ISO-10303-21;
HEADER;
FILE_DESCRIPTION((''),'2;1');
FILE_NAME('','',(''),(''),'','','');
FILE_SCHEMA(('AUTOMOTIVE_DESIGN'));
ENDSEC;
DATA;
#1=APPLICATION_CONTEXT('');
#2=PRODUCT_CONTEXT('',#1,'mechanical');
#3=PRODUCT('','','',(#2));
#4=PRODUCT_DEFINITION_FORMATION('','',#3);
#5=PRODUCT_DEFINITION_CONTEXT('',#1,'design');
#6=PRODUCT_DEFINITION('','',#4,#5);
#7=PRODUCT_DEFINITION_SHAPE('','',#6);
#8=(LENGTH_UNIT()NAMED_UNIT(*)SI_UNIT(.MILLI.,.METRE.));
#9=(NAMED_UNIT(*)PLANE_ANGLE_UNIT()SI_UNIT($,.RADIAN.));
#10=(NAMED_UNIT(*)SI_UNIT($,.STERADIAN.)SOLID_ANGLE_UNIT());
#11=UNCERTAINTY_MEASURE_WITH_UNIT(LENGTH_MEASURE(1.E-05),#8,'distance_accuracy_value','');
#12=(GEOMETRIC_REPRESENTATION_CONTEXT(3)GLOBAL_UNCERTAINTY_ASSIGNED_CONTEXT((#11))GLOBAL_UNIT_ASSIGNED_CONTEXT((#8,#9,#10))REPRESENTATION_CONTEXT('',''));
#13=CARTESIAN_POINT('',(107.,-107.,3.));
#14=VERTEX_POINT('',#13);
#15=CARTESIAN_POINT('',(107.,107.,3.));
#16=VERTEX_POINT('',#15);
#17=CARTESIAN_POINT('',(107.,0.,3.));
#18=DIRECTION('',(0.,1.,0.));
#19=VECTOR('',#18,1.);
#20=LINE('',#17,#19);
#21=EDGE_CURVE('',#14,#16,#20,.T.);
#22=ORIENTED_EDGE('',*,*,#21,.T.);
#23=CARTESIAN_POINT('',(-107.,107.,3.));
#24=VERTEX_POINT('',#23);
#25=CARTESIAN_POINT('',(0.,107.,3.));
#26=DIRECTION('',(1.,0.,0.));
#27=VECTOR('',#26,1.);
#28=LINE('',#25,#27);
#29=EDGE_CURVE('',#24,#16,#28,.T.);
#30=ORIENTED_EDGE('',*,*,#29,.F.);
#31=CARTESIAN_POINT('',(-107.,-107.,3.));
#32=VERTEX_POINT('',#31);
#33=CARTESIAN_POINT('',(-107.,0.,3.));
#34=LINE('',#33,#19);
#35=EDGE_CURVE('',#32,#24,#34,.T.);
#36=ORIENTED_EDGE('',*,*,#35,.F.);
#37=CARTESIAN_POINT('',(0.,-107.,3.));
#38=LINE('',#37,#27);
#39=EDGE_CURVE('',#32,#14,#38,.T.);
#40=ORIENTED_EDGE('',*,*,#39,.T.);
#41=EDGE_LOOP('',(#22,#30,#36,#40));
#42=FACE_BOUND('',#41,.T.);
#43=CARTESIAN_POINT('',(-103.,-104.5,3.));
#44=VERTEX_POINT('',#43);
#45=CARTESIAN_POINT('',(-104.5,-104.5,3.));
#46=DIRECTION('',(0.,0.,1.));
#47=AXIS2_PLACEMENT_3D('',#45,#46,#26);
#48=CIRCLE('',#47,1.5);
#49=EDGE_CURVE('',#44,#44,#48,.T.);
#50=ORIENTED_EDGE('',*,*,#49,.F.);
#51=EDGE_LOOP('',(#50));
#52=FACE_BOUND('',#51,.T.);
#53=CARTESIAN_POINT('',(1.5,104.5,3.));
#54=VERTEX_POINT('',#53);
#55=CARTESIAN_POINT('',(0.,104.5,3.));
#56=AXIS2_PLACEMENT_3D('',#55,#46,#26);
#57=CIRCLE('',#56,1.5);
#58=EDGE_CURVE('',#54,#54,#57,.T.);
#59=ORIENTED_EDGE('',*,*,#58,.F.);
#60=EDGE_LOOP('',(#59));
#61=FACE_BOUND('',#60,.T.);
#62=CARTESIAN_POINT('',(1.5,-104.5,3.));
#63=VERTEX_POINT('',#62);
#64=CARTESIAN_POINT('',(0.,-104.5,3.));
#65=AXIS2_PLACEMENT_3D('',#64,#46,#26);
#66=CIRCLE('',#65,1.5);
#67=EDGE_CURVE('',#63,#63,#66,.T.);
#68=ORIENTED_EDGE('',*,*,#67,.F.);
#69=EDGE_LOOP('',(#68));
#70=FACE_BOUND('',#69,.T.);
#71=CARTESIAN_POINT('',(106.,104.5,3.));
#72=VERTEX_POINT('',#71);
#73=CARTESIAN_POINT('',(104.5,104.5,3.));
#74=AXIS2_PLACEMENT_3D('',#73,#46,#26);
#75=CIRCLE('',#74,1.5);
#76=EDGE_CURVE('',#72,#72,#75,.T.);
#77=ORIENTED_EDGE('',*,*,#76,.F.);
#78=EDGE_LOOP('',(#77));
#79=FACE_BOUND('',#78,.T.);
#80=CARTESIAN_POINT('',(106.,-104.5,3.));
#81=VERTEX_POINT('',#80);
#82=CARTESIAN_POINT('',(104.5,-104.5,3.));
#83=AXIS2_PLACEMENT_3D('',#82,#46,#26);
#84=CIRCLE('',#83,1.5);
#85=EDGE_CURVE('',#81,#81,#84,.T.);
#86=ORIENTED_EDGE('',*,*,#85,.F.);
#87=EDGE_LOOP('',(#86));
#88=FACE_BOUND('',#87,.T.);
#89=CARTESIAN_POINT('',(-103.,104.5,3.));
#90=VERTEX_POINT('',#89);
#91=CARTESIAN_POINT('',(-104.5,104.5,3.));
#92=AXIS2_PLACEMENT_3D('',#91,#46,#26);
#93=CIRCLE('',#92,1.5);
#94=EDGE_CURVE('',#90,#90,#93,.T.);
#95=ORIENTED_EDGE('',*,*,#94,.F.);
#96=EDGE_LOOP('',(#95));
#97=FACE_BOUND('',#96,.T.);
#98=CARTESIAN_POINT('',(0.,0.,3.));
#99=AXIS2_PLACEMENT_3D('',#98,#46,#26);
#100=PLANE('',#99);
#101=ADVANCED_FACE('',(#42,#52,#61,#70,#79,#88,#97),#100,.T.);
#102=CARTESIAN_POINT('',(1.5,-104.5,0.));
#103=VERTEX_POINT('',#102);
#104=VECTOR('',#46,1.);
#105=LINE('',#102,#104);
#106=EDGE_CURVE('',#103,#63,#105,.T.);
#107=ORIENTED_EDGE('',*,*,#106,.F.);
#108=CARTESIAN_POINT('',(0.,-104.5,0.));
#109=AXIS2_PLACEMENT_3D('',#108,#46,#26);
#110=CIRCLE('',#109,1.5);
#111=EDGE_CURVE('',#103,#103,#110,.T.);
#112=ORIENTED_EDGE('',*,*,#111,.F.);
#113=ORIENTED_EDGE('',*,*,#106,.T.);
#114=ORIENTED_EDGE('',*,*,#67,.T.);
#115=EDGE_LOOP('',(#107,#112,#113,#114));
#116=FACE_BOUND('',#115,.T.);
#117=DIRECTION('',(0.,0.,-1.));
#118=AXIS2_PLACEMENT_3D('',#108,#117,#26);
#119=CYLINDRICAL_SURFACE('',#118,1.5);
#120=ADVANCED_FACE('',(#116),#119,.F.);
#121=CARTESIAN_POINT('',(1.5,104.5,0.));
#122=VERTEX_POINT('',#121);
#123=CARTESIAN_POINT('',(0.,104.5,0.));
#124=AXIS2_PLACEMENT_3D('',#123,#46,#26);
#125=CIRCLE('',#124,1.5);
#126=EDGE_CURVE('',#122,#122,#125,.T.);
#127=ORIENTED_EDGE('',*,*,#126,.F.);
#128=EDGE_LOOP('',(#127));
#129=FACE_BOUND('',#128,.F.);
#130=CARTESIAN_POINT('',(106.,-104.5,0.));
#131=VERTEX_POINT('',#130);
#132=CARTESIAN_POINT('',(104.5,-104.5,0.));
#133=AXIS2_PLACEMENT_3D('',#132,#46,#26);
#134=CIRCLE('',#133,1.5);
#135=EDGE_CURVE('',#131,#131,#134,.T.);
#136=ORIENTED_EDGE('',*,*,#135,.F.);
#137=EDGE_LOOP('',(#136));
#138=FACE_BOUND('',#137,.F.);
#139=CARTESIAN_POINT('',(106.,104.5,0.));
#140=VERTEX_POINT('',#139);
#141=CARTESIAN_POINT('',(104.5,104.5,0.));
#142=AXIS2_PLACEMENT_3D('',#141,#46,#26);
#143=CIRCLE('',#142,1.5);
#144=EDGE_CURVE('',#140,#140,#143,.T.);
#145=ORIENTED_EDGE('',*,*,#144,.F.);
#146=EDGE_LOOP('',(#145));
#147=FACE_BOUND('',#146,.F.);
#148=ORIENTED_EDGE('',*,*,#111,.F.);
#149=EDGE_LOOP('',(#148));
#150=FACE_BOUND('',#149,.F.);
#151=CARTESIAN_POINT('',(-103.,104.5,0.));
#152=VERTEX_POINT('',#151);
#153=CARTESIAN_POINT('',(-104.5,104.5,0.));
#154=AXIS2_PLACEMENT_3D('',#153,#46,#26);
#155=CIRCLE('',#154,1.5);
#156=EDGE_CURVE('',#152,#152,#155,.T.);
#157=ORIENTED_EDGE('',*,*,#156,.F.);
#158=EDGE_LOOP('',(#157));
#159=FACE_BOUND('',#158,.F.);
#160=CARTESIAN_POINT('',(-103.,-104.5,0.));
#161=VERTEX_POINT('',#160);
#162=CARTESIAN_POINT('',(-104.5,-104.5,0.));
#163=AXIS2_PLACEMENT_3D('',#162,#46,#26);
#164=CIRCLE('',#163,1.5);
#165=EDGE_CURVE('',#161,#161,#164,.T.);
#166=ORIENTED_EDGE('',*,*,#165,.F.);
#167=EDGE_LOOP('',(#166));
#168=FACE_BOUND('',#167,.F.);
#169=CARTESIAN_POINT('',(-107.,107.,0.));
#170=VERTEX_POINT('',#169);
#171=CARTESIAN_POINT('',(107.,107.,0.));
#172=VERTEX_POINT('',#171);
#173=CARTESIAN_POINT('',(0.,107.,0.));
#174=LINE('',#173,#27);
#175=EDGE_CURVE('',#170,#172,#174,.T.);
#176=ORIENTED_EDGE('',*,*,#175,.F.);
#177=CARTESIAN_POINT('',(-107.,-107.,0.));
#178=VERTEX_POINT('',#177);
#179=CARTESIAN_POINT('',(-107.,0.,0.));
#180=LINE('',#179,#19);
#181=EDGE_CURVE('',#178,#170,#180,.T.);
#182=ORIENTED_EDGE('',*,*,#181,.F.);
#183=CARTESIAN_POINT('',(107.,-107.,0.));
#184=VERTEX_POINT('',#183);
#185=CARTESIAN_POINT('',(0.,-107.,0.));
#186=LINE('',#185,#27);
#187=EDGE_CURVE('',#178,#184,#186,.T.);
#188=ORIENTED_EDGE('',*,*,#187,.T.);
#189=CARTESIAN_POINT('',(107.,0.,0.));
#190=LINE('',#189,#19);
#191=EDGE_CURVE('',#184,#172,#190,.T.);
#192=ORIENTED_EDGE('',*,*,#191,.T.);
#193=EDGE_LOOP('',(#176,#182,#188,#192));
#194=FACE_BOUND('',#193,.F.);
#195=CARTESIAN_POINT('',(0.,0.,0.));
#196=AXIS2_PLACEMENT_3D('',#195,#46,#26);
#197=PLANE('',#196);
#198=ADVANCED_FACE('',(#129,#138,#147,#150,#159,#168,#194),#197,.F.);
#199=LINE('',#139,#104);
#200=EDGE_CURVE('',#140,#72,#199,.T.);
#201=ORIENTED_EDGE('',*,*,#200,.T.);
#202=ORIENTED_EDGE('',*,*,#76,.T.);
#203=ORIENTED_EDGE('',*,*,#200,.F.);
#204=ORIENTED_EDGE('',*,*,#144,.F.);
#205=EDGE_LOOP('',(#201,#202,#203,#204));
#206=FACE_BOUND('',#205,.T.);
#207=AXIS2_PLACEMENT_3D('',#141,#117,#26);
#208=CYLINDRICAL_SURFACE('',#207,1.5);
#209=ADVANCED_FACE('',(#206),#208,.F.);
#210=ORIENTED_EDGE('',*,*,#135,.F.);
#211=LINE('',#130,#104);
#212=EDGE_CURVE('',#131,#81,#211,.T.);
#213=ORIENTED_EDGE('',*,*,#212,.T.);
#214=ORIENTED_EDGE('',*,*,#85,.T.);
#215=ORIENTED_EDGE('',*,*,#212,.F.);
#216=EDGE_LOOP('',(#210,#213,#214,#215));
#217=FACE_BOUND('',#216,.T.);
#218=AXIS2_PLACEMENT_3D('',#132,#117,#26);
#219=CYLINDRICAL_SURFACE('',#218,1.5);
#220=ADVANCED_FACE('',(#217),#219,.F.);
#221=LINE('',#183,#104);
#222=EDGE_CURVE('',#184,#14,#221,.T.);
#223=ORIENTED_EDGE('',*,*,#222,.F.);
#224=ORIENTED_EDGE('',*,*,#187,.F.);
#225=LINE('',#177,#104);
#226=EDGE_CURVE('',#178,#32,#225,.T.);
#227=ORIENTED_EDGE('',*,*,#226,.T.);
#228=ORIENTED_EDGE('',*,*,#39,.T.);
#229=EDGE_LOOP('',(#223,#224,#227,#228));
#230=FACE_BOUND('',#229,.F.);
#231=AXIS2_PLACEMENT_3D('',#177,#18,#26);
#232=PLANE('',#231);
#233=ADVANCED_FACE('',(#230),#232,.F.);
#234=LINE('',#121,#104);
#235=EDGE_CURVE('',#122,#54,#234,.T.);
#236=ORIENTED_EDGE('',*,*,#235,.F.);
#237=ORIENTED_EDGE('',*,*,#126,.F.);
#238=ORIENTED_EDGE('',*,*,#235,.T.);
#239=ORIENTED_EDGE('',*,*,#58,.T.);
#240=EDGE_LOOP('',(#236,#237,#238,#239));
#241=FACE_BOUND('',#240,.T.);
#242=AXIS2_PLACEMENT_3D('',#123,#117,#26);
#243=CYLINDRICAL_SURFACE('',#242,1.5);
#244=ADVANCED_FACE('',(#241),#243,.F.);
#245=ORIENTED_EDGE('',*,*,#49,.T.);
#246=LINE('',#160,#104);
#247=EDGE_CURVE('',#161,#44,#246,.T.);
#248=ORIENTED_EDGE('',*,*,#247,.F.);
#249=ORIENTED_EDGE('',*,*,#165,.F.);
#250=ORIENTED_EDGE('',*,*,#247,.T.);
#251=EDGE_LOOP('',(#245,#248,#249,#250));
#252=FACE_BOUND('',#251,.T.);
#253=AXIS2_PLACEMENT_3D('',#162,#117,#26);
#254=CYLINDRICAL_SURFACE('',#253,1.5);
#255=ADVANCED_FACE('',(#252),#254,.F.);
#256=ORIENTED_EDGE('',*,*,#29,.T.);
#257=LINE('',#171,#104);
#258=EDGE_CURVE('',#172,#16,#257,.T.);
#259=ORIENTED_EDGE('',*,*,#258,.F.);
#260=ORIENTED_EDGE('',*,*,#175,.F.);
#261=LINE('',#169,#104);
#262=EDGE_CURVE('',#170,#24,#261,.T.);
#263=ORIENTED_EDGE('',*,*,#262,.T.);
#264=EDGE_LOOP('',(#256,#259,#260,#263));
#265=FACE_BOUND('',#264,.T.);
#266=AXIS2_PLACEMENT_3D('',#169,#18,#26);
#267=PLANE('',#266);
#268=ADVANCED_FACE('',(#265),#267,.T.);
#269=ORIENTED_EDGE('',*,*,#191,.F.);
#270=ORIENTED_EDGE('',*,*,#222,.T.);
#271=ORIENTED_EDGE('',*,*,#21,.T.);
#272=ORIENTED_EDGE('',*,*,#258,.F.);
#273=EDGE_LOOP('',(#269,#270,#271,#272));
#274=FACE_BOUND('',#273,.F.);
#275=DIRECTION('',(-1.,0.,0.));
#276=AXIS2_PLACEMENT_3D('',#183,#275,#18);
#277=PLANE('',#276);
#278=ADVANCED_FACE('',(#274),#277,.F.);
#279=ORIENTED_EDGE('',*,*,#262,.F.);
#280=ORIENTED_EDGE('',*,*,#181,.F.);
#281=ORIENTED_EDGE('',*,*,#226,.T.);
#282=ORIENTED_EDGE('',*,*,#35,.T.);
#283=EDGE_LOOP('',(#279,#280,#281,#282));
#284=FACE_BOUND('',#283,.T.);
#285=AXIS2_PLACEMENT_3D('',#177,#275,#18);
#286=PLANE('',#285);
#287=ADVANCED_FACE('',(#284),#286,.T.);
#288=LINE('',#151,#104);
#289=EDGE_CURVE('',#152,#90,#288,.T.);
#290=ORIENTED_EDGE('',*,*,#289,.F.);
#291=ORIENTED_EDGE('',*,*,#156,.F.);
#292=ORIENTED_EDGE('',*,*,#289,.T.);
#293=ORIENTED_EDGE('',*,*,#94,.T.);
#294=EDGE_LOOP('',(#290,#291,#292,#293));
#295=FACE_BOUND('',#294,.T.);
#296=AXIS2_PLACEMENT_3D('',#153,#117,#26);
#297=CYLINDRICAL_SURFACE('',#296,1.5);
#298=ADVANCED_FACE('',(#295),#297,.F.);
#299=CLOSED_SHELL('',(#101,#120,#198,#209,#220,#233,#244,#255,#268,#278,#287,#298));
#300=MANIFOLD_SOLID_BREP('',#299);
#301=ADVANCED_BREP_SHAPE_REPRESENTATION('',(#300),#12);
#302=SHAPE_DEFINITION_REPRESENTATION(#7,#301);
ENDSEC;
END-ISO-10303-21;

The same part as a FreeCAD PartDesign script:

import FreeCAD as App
import Part
import Sketcher
Q = App.Units.Quantity

doc = App.newDocument("Part")
params = doc.addObject("Spreadsheet::Sheet", "Params")
for row, (alias, value) in enumerate([
    ("sketch1_diameter", "3 mm"),
    ("sketch1_width", "214 mm"),
    ("pad1_length", "3 mm"),
], start=1):
    params.set(f"A{row}", alias)
    params.set(f"B{row}", "=" + value)
    params.setAlias(f"B{row}", alias)

body = doc.addObject("PartDesign::Body", "Body")

sketch1 = body.newObject("Sketcher::SketchObject", "Sketch")
sketch1.AttachmentSupport = (doc.getObject("XY_Plane"), [""])
sketch1.MapMode = "FlatFace"
sketch1.addGeometry(Part.LineSegment(App.Vector(-107, 107, 0), App.Vector(-107, -107, 0)), False)
sketch1.addGeometry(Part.LineSegment(App.Vector(-107, -107, 0), App.Vector(107, -107, 0)), False)
sketch1.addGeometry(Part.LineSegment(App.Vector(107, -107, 0), App.Vector(107, 107, 0)), False)
sketch1.addGeometry(Part.LineSegment(App.Vector(107, 107, 0), App.Vector(-107, 107, 0)), False)
sketch1.addGeometry(Part.Circle(App.Vector(-104.5, -104.5, 0), App.Vector(0, 0, 1), 1.5), False)
sketch1.addGeometry(Part.Circle(App.Vector(0, -104.5, 0), App.Vector(0, 0, 1), 1.5), False)
sketch1.addGeometry(Part.Circle(App.Vector(104.5, -104.5, 0), App.Vector(0, 0, 1), 1.5), False)
sketch1.addGeometry(Part.Circle(App.Vector(-104.5, 104.5, 0), App.Vector(0, 0, 1), 1.5), False)
sketch1.addGeometry(Part.Circle(App.Vector(0, 104.5, 0), App.Vector(0, 0, 1), 1.5), False)
sketch1.addGeometry(Part.Circle(App.Vector(104.5, 104.5, 0), App.Vector(0, 0, 1), 1.5), False)
sketch1.addConstraint(Sketcher.Constraint("Coincident", 0, 2, 1, 1))
sketch1.addConstraint(Sketcher.Constraint("Coincident", 1, 2, 2, 1))
sketch1.addConstraint(Sketcher.Constraint("Coincident", 2, 2, 3, 1))
sketch1.addConstraint(Sketcher.Constraint("Coincident", 3, 2, 0, 1))
sketch1.addConstraint(Sketcher.Constraint("Vertical", 0))
sketch1.addConstraint(Sketcher.Constraint("Horizontal", 1))
sketch1.addConstraint(Sketcher.Constraint("Vertical", 2))
sketch1.addConstraint(Sketcher.Constraint("Horizontal", 3))
sketch1.addConstraint(Sketcher.Constraint("Equal", 4, 5))
sketch1.addConstraint(Sketcher.Constraint("Equal", 5, 6))
sketch1.addConstraint(Sketcher.Constraint("Equal", 6, 7))
sketch1.addConstraint(Sketcher.Constraint("Equal", 7, 8))
sketch1.addConstraint(Sketcher.Constraint("Equal", 8, 9))
sketch1.addConstraint(Sketcher.Constraint("Symmetric", 6, 3, 7, 3, -1, 1))
sketch1.addConstraint(Sketcher.Constraint("Symmetric", 5, 3, 8, 3, -1, 1))
sketch1.addConstraint(Sketcher.Constraint("Symmetric", 4, 3, 9, 3, -1, 1))
sketch1.addConstraint(Sketcher.Constraint("Symmetric", 0, 2, 2, 2, -1, 1))
sketch1.addConstraint(Sketcher.Constraint("Symmetric", 4, 3, 6, 3, -2))
sketch1.addConstraint(Sketcher.Constraint("PointOnObject", 5, 3, -2))
sketch1.addConstraint(Sketcher.Constraint("Horizontal", 4, 3, 5, 3))
sketch1.addConstraint(Sketcher.Constraint("Equal", 3, 0))
sketch1.addConstraint(Sketcher.Constraint("Diameter", 4, Q("3 mm")))
sketch1.addConstraint(Sketcher.Constraint("DistanceX", 1, 1, 1, 2, Q("214 mm")))
sketch1.addConstraint(Sketcher.Constraint("DistanceX", 4, 3, 6, 3, Q("209 mm")))
sketch1.addConstraint(Sketcher.Constraint("DistanceY", 4, 3, 7, 3, Q("209 mm")))
sketch1.setExpression("Constraints[21]", "Params.sketch1_diameter")
sketch1.setExpression("Constraints[22]", "Params.sketch1_width")
pad1 = body.newObject("PartDesign::Pad", "Pad")
pad1.Profile = sketch1
pad1.setExpression("Length", "Params.pad1_length")

doc.recompute()
